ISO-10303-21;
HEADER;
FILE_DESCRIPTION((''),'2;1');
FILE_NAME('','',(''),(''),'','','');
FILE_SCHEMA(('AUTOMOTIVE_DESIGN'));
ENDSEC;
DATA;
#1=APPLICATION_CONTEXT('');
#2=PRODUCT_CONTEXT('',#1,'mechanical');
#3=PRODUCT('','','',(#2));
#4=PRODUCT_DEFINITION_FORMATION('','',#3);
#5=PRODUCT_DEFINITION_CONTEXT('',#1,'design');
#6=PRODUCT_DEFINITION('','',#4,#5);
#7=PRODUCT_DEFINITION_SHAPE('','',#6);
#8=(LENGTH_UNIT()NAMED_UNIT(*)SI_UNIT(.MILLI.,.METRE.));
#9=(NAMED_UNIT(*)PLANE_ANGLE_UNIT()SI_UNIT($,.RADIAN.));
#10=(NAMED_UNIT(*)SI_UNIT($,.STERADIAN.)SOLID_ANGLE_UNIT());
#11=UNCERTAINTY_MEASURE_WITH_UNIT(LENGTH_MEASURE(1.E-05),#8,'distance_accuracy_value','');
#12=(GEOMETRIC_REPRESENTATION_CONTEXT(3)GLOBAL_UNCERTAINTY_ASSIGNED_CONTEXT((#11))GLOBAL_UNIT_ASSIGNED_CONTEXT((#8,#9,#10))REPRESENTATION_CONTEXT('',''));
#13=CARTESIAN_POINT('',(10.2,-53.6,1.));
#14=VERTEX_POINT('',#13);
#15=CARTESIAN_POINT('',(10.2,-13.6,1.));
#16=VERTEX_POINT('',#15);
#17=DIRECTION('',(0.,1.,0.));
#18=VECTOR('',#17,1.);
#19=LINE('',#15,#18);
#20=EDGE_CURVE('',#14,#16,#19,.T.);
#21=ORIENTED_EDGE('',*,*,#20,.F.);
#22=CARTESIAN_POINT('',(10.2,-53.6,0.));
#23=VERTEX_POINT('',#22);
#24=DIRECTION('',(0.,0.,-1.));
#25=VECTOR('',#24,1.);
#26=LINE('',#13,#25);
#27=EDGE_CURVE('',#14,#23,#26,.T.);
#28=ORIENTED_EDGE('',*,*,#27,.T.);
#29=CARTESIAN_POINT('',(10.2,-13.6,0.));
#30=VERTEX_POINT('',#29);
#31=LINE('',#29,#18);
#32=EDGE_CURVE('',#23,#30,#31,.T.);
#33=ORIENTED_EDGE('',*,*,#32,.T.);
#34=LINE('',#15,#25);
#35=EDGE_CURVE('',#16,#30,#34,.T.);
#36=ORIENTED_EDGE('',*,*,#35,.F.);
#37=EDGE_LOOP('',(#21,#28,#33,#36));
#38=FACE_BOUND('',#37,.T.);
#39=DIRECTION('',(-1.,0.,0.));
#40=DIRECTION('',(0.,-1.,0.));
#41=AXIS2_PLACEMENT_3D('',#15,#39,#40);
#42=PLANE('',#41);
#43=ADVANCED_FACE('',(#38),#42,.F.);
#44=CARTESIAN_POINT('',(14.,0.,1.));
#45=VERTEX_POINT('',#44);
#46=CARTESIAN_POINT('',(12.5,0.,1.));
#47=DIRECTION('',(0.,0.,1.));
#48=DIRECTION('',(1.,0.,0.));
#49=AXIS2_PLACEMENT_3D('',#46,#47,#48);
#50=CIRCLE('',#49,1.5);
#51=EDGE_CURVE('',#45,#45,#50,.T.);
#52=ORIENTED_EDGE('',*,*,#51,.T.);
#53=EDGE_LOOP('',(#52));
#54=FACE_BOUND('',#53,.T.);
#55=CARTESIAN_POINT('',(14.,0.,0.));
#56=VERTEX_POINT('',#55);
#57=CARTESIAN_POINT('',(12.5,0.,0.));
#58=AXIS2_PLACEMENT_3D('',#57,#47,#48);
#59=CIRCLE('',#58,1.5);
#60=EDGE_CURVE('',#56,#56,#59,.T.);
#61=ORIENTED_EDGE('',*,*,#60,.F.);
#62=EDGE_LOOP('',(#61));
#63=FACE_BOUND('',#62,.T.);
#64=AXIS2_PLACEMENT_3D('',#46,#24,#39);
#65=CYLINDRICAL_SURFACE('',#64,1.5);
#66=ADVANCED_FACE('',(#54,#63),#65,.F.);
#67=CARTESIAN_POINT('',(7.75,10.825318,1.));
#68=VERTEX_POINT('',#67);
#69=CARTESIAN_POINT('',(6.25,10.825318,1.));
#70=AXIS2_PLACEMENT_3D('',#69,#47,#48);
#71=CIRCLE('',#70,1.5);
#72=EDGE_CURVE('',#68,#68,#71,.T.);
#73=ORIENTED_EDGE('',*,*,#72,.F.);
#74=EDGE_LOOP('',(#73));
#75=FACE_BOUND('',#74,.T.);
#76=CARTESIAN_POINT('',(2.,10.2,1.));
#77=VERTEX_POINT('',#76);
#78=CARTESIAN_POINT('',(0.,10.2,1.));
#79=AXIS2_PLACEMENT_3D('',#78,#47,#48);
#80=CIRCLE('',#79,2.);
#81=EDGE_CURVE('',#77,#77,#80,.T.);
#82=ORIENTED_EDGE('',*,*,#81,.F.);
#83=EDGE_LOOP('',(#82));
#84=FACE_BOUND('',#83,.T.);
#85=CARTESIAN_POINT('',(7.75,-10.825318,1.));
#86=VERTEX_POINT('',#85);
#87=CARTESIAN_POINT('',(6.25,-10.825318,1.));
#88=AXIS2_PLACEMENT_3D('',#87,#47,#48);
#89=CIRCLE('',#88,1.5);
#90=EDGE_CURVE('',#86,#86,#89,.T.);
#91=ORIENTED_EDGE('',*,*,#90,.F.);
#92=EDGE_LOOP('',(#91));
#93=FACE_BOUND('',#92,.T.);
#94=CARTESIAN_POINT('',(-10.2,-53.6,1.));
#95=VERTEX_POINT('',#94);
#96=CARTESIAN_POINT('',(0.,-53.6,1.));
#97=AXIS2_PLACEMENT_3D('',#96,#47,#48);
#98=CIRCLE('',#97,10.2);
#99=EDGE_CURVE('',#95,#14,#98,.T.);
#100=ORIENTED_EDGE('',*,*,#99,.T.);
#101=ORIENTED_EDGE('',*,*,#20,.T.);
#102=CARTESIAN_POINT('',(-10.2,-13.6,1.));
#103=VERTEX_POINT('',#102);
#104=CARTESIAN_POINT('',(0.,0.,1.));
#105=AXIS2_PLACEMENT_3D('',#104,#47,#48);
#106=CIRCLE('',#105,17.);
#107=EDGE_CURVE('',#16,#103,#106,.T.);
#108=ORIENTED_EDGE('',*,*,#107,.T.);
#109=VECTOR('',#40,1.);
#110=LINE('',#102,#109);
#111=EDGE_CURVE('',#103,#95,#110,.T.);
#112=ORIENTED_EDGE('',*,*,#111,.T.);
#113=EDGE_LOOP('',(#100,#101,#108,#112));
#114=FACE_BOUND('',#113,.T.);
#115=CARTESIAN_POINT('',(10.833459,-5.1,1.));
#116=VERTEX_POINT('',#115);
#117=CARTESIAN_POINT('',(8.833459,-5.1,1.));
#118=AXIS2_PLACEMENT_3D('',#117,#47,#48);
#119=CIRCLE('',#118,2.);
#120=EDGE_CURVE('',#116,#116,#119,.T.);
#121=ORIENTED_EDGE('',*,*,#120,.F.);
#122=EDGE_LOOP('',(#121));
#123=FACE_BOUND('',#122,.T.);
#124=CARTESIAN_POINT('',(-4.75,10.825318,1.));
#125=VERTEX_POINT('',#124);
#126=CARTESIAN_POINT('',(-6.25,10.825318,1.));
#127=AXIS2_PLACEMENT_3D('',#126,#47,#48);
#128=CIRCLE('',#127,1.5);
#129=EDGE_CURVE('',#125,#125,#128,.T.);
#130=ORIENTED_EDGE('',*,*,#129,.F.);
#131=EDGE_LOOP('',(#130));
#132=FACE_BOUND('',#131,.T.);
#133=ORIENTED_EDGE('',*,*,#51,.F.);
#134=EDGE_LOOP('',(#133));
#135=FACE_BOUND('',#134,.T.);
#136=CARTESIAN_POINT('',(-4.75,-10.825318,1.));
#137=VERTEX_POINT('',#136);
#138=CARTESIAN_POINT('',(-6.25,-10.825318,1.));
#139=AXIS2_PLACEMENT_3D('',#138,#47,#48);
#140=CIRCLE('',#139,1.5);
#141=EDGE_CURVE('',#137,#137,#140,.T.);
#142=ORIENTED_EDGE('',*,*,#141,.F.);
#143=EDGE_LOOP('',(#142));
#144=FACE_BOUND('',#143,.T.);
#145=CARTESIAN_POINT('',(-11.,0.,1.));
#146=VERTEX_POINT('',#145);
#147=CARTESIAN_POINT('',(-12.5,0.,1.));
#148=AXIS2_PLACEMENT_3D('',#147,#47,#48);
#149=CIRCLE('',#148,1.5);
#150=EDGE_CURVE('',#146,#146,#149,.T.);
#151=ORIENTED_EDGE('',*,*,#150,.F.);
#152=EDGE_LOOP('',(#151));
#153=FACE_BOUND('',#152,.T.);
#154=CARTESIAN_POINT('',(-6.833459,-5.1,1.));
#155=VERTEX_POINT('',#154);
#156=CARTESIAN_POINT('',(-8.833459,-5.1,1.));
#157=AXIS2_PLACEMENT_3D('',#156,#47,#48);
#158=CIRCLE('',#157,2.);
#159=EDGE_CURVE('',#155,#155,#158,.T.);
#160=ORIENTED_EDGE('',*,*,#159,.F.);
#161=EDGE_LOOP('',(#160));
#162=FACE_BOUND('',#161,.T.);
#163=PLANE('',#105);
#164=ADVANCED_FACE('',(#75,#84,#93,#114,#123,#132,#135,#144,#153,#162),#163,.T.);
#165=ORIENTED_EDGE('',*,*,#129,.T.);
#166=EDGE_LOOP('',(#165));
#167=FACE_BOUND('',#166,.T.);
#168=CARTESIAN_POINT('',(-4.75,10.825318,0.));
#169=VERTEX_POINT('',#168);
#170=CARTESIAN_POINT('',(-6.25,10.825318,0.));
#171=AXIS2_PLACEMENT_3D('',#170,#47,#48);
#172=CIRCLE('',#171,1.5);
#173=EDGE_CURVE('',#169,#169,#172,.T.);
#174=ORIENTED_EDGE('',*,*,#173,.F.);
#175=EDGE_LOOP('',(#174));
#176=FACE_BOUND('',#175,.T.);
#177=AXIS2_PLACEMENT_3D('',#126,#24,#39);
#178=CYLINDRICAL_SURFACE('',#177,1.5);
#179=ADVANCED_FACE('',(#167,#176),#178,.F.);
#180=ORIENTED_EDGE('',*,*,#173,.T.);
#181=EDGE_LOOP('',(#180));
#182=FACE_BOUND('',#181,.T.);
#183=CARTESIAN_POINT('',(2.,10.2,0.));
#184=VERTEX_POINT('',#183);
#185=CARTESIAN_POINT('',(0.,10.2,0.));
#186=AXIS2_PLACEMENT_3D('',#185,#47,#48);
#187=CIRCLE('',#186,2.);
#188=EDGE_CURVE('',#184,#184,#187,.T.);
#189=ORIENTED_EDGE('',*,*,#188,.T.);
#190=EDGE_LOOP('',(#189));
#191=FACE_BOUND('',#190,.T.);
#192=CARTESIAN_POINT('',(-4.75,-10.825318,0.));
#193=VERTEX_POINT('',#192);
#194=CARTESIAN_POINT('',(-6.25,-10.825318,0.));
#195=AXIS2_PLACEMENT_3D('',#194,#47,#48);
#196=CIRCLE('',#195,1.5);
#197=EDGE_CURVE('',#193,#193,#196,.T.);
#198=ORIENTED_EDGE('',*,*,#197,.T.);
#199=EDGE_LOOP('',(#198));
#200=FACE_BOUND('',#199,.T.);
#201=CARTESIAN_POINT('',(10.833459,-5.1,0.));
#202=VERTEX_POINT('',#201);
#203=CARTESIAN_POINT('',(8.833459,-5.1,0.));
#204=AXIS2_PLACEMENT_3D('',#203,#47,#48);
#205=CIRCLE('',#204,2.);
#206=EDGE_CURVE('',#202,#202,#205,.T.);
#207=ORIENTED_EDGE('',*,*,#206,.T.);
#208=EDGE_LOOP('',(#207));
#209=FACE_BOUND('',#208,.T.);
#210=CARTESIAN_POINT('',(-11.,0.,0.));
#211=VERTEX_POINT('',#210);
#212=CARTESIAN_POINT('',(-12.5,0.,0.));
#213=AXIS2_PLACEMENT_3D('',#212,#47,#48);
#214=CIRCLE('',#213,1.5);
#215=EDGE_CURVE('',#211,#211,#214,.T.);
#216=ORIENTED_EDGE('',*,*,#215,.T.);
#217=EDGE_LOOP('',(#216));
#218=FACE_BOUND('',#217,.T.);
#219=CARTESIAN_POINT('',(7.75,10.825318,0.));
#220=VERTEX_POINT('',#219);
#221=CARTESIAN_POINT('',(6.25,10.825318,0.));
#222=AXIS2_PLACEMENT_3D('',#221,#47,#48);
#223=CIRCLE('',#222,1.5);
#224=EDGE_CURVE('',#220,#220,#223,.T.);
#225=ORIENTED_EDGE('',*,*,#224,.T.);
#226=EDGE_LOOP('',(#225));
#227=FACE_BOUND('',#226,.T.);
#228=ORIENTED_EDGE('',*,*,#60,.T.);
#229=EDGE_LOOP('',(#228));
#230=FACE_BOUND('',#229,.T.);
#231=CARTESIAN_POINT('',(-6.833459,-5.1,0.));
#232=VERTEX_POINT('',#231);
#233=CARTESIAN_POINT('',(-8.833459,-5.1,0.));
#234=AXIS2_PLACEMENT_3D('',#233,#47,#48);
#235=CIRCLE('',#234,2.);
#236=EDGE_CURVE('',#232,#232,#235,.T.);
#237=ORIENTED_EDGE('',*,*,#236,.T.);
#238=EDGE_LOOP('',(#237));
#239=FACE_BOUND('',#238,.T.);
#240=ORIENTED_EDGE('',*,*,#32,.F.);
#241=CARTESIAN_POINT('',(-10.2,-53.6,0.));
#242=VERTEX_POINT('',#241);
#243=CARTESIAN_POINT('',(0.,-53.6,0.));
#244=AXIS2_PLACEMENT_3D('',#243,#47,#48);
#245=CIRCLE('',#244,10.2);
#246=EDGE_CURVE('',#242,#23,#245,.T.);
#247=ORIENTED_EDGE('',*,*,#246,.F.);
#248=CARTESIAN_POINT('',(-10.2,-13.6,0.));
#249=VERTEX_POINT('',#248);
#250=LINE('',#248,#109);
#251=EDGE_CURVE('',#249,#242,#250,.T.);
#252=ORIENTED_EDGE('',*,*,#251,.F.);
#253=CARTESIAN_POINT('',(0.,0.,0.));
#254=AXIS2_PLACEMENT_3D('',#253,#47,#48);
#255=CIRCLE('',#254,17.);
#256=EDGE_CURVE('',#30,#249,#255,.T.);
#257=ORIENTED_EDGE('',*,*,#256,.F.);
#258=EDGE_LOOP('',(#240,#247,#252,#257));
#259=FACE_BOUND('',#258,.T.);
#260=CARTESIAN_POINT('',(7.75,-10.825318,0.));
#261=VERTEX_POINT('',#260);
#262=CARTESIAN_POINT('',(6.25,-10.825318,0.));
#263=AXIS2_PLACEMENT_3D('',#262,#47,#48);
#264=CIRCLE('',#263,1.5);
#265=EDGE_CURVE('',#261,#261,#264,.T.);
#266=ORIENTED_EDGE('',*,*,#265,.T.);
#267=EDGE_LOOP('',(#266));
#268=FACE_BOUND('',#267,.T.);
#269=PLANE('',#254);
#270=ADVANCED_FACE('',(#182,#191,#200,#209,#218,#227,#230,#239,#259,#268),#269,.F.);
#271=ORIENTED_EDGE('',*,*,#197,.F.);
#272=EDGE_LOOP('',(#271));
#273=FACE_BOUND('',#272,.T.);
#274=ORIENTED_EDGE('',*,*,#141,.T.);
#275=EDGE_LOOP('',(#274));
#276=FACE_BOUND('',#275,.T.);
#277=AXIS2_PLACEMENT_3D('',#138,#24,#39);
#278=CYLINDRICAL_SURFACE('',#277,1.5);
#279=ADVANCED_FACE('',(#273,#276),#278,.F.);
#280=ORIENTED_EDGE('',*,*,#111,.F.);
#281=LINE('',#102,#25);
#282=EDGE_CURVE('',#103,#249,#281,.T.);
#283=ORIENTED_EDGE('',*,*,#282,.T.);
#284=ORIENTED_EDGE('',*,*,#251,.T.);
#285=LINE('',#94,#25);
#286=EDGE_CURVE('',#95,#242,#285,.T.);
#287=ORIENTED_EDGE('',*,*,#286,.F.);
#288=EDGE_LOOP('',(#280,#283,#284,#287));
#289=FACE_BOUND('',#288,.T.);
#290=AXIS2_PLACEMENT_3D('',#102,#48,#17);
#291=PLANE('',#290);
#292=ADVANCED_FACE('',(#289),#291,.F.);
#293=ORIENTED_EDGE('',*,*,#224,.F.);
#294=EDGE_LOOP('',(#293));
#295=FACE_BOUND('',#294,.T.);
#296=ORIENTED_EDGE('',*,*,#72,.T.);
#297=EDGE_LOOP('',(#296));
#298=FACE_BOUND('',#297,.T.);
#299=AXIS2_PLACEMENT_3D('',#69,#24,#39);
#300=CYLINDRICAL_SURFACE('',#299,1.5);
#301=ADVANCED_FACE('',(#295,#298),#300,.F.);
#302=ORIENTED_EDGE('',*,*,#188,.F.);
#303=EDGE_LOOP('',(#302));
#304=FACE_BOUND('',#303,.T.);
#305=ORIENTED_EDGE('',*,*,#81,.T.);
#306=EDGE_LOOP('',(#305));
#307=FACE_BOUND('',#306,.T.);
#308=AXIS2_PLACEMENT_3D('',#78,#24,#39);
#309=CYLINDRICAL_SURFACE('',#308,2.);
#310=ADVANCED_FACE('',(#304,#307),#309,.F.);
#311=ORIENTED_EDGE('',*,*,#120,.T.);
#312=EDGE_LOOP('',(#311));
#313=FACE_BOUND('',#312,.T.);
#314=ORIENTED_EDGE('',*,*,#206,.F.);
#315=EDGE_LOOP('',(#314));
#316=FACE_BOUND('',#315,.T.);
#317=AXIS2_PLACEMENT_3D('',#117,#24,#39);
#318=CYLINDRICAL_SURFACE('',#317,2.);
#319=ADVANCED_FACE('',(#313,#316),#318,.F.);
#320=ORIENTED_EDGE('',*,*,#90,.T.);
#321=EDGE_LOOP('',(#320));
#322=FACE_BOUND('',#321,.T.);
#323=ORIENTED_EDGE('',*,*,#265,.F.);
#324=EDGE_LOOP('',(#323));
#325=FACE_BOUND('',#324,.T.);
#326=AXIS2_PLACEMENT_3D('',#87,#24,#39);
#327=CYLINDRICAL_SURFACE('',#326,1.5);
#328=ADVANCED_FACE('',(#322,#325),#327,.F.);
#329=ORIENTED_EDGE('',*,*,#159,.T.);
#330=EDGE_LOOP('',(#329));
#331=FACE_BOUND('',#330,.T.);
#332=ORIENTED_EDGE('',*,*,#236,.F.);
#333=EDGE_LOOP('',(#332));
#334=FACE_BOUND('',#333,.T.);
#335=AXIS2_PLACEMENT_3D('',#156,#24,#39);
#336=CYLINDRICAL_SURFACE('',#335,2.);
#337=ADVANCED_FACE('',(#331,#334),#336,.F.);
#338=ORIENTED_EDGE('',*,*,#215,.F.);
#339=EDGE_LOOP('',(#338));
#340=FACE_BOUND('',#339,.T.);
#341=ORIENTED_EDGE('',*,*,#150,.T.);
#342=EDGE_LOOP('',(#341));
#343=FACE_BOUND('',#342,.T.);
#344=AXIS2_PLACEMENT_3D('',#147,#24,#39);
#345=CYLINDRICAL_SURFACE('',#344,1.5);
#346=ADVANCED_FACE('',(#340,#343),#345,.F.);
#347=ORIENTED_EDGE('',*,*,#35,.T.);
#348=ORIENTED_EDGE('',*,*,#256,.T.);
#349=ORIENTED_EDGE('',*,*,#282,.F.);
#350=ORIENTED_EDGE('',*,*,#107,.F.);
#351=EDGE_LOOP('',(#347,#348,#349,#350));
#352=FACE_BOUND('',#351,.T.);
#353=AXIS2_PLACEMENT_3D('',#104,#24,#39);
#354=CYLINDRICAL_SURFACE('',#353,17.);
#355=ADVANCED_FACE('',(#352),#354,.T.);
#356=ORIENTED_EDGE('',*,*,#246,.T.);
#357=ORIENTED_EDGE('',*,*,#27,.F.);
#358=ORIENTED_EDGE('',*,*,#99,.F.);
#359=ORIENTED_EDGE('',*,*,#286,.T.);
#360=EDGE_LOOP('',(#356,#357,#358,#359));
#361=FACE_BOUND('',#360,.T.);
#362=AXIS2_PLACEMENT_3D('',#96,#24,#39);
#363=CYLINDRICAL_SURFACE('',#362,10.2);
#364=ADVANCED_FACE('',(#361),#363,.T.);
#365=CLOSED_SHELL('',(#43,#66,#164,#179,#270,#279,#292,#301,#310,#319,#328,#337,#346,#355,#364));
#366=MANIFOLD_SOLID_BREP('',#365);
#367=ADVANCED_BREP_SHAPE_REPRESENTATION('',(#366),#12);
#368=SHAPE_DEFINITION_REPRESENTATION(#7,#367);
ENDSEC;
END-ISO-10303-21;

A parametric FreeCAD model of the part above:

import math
import FreeCAD as App
import Part
import Sketcher

doc = App.newDocument("Part")
body = doc.addObject("PartDesign::Body", "Body")

# Sketch on XY plane
sketch1 = doc.addObject("Sketcher::SketchObject", "Sketch")
body.addObject(sketch1)
sketch1.AttachmentSupport = (doc.XY_Plane, [""])
sketch1.MapMode = "FlatFace"
sketch1.addGeometry(Part.LineSegment(App.Vector(-10.2, -13.6, 0), App.Vector(-10.2, -53.6, 0)), False)
sketch1.addGeometry(Part.ArcOfCircle(Part.Circle(App.Vector(0, -53.6, 0), App.Vector(0, 0, 1), 10.2), math.radians(180), math.radians(360)), False)
sketch1.addGeometry(Part.LineSegment(App.Vector(10.2, -53.6, 0), App.Vector(10.2, -13.6, 0)), False)
sketch1.addGeometry(Part.ArcOfCircle(Part.Circle(App.Vector(0, 0, 0), App.Vector(0, 0, 1), 17), math.radians(-53), math.radians(233)), False)
sketch1.addGeometry(Part.Circle(App.Vector(-6.2, -10.8, 0), App.Vector(0, 0, 1), 1.5), False)
sketch1.addGeometry(Part.Circle(App.Vector(-8.8, -5.1, 0), App.Vector(0, 0, 1), 2), False)
sketch1.addGeometry(Part.Circle(App.Vector(-12.5, 0, 0), App.Vector(0, 0, 1), 1.5), False)
sketch1.addGeometry(Part.Circle(App.Vector(6.2, -10.8, 0), App.Vector(0, 0, 1), 1.5), False)
sketch1.addGeometry(Part.Circle(App.Vector(8.8, -5.1, 0), App.Vector(0, 0, 1), 2), False)
sketch1.addGeometry(Part.Circle(App.Vector(12.5, 0, 0), App.Vector(0, 0, 1), 1.5), False)
sketch1.addGeometry(Part.Circle(App.Vector(-6.2, 10.8, 0), App.Vector(0, 0, 1), 1.5), False)
sketch1.addGeometry(Part.Circle(App.Vector(0, 10.2, 0), App.Vector(0, 0, 1), 2), False)
sketch1.addGeometry(Part.Circle(App.Vector(6.2, 10.8, 0), App.Vector(0, 0, 1), 1.5), False)
sketch1.addConstraint(Sketcher.Constraint("Tangent", 0, 2, 1, 1))
sketch1.addConstraint(Sketcher.Constraint("Tangent", 1, 2, 2, 1))
sketch1.addConstraint(Sketcher.Constraint("Coincident", 2, 2, 3, 1))
sketch1.addConstraint(Sketcher.Constraint("Coincident", 3, 2, 0, 1))
sketch1.addConstraint(Sketcher.Constraint("Vertical", 0))
sketch1.addConstraint(Sketcher.Constraint("Vertical", 2))
sketch1.addConstraint(Sketcher.Constraint("Coincident", 3, 3, -1, 1))
sketch1.addConstraint(Sketcher.Constraint("Equal", 4, 6))
sketch1.addConstraint(Sketcher.Constraint("Equal", 6, 7))
sketch1.addConstraint(Sketcher.Constraint("Equal", 5, 8))
sketch1.addConstraint(Sketcher.Constraint("Equal", 7, 9))
sketch1.addConstraint(Sketcher.Constraint("Equal", 9, 10))
sketch1.addConstraint(Sketcher.Constraint("Equal", 8, 11))
sketch1.addConstraint(Sketcher.Constraint("Equal", 10, 12))
sketch1.addConstraint(Sketcher.Constraint("Symmetric", 6, 3, 9, 3, -1, 1))
sketch1.addConstraint(Sketcher.Constraint("Symmetric", 7, 3, 10, 3, -1, 1))
sketch1.addConstraint(Sketcher.Constraint("Symmetric", 4, 3, 12, 3, -1, 1))
sketch1.addConstraint(Sketcher.Constraint("Symmetric", 4, 3, 7, 3, -2))
sketch1.addConstraint(Sketcher.Constraint("Symmetric", 5, 3, 8, 3, -2))
sketch1.addConstraint(Sketcher.Constraint("PointOnObject", 1, 3, -2))
sketch1.addConstraint(Sketcher.Constraint("PointOnObject", 6, 3, -1))
sketch1.addConstraint(Sketcher.Constraint("PointOnObject", 11, 3, -2))
sketch1.addConstraint(Sketcher.Constraint("Diameter", 4, 3.0))
sketch1.addConstraint(Sketcher.Constraint("Diameter", 5, 4.0))
sketch1.addConstraint(Sketcher.Constraint("Radius", 3, 17.0))
sketch1.addConstraint(Sketcher.Constraint("Radius", 1, 10.2))
sketch1.addConstraint(Sketcher.Constraint("DistanceY", 0, 2, 0, 1, 40.0))
sketch1.addConstraint(Sketcher.Constraint("DistanceY", 5, 3, -1, 1, 5.1))
sketch1.addConstraint(Sketcher.Constraint("DistanceX", 6, 3, -1, 1, 12.5))
sketch1.addConstraint(Sketcher.Constraint("DistanceY", -1, 1, 11, 3, 10.2))
sketch1.addConstraint(Sketcher.Constraint("DistanceX", 4, 3, 7, 3, 12.5))
sketch1.addConstraint(Sketcher.Constraint("DistanceX", 5, 3, -1, 1, 8.833459))
sketch1.addConstraint(Sketcher.Constraint("DistanceY", 4, 3, -1, 1, 10.825318))
pad1 = doc.addObject("PartDesign::Pad", "Pad")
body.addObject(pad1)
pad1.Profile = sketch1
pad1.Length = 1

doc.recompute()
